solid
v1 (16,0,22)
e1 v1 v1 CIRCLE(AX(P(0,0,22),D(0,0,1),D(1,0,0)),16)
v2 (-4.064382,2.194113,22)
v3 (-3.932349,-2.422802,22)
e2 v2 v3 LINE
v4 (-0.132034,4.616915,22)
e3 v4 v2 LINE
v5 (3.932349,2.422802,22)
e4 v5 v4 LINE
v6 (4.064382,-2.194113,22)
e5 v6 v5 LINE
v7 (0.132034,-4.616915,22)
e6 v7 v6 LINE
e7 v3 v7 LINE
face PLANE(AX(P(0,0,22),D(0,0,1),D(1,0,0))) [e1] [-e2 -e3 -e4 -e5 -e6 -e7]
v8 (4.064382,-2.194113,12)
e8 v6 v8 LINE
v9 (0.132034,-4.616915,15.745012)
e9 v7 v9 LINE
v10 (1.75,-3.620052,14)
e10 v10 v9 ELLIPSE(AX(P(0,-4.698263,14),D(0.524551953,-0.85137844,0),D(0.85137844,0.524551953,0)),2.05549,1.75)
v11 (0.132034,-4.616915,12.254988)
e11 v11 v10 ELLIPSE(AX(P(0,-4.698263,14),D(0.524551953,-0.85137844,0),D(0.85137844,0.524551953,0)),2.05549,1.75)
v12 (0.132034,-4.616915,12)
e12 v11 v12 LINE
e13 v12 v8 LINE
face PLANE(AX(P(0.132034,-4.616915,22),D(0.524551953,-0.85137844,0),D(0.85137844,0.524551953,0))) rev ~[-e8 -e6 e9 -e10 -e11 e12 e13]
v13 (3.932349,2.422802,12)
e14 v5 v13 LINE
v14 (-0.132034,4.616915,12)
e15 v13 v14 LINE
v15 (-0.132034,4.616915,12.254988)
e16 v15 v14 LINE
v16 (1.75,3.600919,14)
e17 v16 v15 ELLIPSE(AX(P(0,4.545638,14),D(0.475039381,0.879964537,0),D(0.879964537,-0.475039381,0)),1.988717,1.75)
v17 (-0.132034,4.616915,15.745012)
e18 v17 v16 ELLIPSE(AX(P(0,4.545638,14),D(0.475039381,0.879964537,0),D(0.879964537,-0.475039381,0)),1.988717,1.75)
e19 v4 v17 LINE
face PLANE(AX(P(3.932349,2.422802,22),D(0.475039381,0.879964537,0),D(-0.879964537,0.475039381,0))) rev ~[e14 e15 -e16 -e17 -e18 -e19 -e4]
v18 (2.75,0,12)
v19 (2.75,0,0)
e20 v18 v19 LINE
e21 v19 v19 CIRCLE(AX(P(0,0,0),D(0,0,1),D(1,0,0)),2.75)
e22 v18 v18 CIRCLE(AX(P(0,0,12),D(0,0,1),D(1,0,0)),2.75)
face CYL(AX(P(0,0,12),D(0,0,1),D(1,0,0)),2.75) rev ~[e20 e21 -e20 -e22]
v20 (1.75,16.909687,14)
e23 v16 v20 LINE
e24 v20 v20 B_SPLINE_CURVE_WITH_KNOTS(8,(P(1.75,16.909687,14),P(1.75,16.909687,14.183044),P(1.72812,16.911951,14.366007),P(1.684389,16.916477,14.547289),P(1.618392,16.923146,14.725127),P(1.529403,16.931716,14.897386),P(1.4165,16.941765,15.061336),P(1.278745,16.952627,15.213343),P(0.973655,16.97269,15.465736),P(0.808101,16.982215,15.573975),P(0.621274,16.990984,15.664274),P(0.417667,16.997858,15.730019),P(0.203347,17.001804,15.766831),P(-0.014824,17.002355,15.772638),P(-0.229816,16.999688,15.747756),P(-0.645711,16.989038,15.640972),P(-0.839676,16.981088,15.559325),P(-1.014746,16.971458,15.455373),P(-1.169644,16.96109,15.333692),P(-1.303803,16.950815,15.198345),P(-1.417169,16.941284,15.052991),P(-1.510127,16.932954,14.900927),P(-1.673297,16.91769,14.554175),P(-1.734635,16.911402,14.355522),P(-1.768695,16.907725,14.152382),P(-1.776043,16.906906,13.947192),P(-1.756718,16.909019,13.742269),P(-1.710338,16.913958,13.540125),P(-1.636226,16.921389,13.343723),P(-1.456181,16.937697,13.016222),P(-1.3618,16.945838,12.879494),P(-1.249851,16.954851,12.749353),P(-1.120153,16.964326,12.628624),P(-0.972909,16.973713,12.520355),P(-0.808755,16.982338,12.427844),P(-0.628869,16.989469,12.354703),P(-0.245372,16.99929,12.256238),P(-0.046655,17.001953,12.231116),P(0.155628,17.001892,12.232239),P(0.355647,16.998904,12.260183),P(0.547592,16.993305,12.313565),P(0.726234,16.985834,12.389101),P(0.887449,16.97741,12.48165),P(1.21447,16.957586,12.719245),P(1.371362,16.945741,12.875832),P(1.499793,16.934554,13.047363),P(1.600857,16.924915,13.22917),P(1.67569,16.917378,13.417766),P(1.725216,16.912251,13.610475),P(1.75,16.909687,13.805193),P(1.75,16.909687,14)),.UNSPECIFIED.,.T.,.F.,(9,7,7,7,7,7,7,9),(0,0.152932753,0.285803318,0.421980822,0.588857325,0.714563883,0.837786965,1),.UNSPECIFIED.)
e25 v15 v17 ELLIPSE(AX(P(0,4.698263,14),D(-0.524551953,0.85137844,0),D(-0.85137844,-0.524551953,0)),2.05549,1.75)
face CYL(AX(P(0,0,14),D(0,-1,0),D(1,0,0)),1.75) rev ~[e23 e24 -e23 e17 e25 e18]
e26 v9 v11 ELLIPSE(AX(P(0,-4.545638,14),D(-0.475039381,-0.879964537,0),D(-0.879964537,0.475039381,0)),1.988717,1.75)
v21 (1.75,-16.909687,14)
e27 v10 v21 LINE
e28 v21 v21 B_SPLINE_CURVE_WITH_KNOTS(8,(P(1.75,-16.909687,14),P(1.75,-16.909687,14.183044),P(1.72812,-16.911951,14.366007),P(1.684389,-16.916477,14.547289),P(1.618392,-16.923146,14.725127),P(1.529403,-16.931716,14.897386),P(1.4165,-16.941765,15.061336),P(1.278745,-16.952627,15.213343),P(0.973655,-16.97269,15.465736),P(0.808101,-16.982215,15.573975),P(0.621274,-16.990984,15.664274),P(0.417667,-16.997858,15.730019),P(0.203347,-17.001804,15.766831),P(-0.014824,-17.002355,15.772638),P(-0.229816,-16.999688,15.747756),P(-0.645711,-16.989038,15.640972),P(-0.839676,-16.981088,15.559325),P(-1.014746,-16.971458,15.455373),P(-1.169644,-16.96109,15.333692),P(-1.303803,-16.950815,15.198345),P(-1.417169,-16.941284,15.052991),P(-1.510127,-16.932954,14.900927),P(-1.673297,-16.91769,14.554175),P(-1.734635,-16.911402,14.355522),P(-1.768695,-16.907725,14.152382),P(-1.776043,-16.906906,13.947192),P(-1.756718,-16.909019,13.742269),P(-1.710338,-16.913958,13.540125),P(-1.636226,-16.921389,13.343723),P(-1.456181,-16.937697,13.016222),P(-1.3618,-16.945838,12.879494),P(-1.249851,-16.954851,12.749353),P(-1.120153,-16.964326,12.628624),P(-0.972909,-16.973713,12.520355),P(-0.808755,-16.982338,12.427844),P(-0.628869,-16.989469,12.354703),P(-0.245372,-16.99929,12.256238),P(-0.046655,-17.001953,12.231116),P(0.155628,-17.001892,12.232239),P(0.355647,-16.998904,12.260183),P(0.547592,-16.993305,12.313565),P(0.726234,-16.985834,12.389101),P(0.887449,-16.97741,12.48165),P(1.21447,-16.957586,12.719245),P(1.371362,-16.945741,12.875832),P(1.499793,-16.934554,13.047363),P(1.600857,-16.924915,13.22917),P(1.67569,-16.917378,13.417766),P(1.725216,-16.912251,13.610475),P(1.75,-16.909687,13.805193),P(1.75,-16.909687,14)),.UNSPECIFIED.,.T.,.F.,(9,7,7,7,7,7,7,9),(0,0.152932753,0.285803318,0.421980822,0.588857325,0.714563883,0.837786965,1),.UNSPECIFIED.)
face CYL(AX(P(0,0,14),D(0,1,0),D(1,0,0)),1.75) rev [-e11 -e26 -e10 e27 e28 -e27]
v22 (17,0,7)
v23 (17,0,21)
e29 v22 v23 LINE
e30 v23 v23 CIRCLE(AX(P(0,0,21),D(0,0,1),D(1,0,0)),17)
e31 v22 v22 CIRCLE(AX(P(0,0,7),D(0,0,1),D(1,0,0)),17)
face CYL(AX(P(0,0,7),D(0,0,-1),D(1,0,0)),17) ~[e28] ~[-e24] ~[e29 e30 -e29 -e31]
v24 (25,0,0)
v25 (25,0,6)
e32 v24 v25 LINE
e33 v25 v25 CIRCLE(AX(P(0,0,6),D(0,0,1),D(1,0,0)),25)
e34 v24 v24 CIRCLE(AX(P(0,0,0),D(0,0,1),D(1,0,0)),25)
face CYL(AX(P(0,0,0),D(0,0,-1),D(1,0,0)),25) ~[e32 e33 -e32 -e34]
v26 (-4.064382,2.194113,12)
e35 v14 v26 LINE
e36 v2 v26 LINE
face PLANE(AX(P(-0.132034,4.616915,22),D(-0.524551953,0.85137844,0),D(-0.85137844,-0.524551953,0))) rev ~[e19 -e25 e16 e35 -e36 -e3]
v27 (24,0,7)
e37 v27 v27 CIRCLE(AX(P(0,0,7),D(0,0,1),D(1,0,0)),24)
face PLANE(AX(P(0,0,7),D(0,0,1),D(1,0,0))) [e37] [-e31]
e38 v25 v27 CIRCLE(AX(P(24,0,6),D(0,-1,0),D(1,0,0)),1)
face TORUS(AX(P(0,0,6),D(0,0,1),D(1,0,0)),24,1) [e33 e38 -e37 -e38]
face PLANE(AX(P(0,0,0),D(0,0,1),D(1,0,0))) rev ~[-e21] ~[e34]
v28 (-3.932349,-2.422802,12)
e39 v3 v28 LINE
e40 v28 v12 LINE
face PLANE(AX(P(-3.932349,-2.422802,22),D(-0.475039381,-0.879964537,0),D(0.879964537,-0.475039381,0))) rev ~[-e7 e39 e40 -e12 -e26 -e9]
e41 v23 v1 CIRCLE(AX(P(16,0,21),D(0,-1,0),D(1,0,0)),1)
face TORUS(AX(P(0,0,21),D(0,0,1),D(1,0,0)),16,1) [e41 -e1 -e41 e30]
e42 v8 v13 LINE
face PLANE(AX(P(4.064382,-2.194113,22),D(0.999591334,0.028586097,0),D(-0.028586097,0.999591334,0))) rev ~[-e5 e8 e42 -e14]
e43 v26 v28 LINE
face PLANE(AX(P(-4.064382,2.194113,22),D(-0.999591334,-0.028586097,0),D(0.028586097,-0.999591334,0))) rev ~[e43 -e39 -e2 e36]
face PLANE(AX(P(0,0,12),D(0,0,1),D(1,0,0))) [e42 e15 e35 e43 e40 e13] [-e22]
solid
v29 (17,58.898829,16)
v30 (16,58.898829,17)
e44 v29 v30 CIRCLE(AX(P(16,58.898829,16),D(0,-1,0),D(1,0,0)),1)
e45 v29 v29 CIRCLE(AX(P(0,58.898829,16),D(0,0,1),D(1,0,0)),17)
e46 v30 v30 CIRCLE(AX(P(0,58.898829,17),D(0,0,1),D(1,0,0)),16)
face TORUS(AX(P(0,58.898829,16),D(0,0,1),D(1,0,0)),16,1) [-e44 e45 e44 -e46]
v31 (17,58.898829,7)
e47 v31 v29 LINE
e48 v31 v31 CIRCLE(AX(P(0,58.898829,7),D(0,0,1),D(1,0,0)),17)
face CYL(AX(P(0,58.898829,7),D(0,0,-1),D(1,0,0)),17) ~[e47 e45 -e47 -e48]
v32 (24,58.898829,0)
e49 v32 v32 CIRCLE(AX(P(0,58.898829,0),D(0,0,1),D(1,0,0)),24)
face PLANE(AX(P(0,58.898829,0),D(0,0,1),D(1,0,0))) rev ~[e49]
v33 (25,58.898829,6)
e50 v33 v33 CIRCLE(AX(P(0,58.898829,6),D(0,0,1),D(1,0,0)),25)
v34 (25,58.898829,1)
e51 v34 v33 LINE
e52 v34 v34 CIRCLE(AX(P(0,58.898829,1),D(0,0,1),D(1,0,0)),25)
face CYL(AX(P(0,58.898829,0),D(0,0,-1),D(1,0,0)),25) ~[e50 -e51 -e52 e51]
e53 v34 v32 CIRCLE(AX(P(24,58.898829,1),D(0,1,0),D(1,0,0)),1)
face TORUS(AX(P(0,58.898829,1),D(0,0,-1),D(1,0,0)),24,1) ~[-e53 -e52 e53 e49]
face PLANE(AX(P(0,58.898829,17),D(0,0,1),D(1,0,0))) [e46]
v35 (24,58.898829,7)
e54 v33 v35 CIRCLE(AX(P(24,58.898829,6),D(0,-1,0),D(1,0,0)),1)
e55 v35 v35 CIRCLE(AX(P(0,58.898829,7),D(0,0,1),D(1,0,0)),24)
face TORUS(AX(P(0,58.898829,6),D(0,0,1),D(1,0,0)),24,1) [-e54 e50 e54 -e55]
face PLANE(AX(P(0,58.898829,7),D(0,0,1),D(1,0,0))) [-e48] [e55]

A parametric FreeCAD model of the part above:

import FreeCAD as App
import Part
import Sketcher
Q = App.Units.Quantity


def edges_at(feature, points):
    """Names of the edges that pass closest to the given points."""
    edges = feature.Shape.Edges
    near = lambda p: min(range(len(edges)), key=lambda i: edges[i].distToShape(Part.Vertex(*p))[0])
    return sorted({f"Edge{near(p) + 1}" for p in points})


def add_polygon(sketch, points):
    """Adds a closed chain of lines whose ends are joined by coincident constraints."""
    first, n = sketch.GeometryCount, len(points)
    for a, b in zip(points, points[1:] + points[:1]):
        sketch.addGeometry(Part.LineSegment(App.Vector(*a, 0), App.Vector(*b, 0)), False)
    for i in range(n):
        sketch.addConstraint(Sketcher.Constraint("Coincident", first + i, 2, first + (i + 1) % n, 1))

doc = App.newDocument("Part")
body = doc.addObject("PartDesign::Body", "Body")

sketch1 = doc.addObject("Sketcher::SketchObject", "Sketch")
body.addObject(sketch1)
sketch1.AttachmentSupport = (doc.XY_Plane, [""])
sketch1.MapMode = "FlatFace"
sketch1.addGeometry(Part.Circle(App.Vector(0, 0, 0), App.Vector(0, 0, 1), 25), False)
sketch1.addConstraint([
    Sketcher.Constraint("Coincident", 0, 3, -1, 1),
    Sketcher.Constraint("Diameter", 0, Q("50 mm")),
])
pad1 = doc.addObject("PartDesign::Pad", "Pad")
body.addObject(pad1)
pad1.Profile = sketch1
pad1.Length = 7

sketch2 = doc.addObject("Sketcher::SketchObject", "Sketch001")
body.addObject(sketch2)
sketch2.AttachmentSupport = (doc.XY_Plane, [""])
sketch2.MapMode = "FlatFace"
sketch2.AttachmentOffset = App.Placement(App.Vector(0, 0, 7), App.Rotation())
sketch2.addGeometry(Part.Circle(App.Vector(0, 0, 0), App.Vector(0, 0, 1), 17), False)
sketch2.addConstraint([
    Sketcher.Constraint("Coincident", 0, 3, -1, 1),
    Sketcher.Constraint("Diameter", 0, Q("34 mm")),
])
pad2 = doc.addObject("PartDesign::Pad", "Pad001")
body.addObject(pad2)
pad2.Profile = sketch2
pad2.Length = 15

sketch3 = doc.addObject("Sketcher::SketchObject", "Sketch002")
body.addObject(sketch3)
sketch3.AttachmentSupport = (doc.XY_Plane, [""])
sketch3.MapMode = "FlatFace"
sketch3.AttachmentOffset = App.Placement(App.Vector(0, 0, 22), App.Rotation())
add_polygon(sketch3, [(-0.1, 4.6), (-4.1, 2.2), (-3.9, -2.4), (0.1, -4.6), (4.1, -2.2), (3.9, 2.4)])
sketch3.addConstraint([
    Sketcher.Constraint("Symmetric", 0, 2, 3, 2, -1, 1),
    Sketcher.Constraint("Symmetric", 1, 2, 4, 2, -1, 1),
    Sketcher.Constraint("Symmetric", 2, 2, 5, 2, -1, 1),
    Sketcher.Constraint("Equal", 0, 1),
    Sketcher.Constraint("Equal", 1, 2),
    Sketcher.Constraint("DistanceY", 1, 2, -1, 1, Q("2.422802 mm")),
    Sketcher.Constraint("DistanceY", 2, 2, 3, 2, Q("2.422802 mm")),
    Sketcher.Constraint("DistanceX", 1, 2, -1, 1, Q("3.932349 mm")),
    Sketcher.Constraint("DistanceX", 2, 2, 3, 2, Q("3.932349 mm")),
])
pocket1 = doc.addObject("PartDesign::Pocket", "Pocket")
body.addObject(pocket1)
pocket1.Profile = sketch3
pocket1.Length = 10

sketch4 = doc.addObject("Sketcher::SketchObject", "Sketch003")
body.addObject(sketch4)
sketch4.AttachmentSupport = (doc.XY_Plane, [""])
sketch4.MapMode = "FlatFace"
sketch4.AttachmentOffset = App.Placement(App.Vector(0, 0, 12), App.Rotation())
sketch4.addGeometry(Part.Circle(App.Vector(0, 0, 0), App.Vector(0, 0, 1), 2.8), False)
sketch4.addConstraint([
    Sketcher.Constraint("Coincident", 0, 3, -1, 1),
    Sketcher.Constraint("Diameter", 0, Q("5.5 mm")),
])
pocket2 = doc.addObject("PartDesign::Pocket", "Pocket001")
body.addObject(pocket2)
pocket2.Profile = sketch4
pocket2.Length = 25
doc.recompute()

fillet = doc.addObject("PartDesign::Fillet", "Fillet")
body.addObject(fillet)
fillet.Base = (pocket2, edges_at(pocket2, [(-25, 0, 7), (-17, 0, 22)]))
fillet.Radius = 1

sketch5 = doc.addObject("Sketcher::SketchObject", "Sketch004")
body.addObject(sketch5)
sketch5.AttachmentSupport = (doc.XZ_Plane, [""])
sketch5.MapMode = "FlatFace"
sketch5.addGeometry(Part.Circle(App.Vector(0, 14, 0), App.Vector(0, 0, 1), 1.8), False)
sketch5.addConstraint([
    Sketcher.Constraint("PointOnObject", 0, 3, -2),
    Sketcher.Constraint("Diameter", 0, Q("3.5 mm")),
    Sketcher.Constraint("DistanceY", -1, 1, 0, 3, Q("14 mm")),
])
pocket3 = doc.addObject("PartDesign::Pocket", "Pocket002")
body.addObject(pocket3)
pocket3.Profile = sketch5
pocket3.Type = "ThroughAll"
pocket3.Midplane = True
body2 = doc.addObject("PartDesign::Body", "Body001")

sketch6 = doc.addObject("Sketcher::SketchObject", "Sketch005")
body2.addObject(sketch6)
sketch6.AttachmentSupport = (doc.getObject("XY_Plane001"), [""])
sketch6.MapMode = "FlatFace"
sketch6.addGeometry(Part.Circle(App.Vector(0, 59, 0), App.Vector(0, 0, 1), 25), False)
sketch6.addConstraint([
    Sketcher.Constraint("PointOnObject", 0, 3, -2),
    Sketcher.Constraint("Diameter", 0, Q("50 mm")),
    Sketcher.Constraint("DistanceY", -1, 1, 0, 3, Q("58.898829 mm")),
])
pad3 = doc.addObject("PartDesign::Pad", "Pad002")
body2.addObject(pad3)
pad3.Profile = sketch6
pad3.Length = 7

sketch7 = doc.addObject("Sketcher::SketchObject", "Sketch006")
body2.addObject(sketch7)
sketch7.AttachmentSupport = (doc.getObject("XY_Plane001"), [""])
sketch7.MapMode = "FlatFace"
sketch7.AttachmentOffset = App.Placement(App.Vector(0, 0, 7), App.Rotation())
sketch7.addGeometry(Part.Circle(App.Vector(0, 59, 0), App.Vector(0, 0, 1), 17), False)
sketch7.addConstraint([
    Sketcher.Constraint("PointOnObject", 0, 3, -2),
    Sketcher.Constraint("Diameter", 0, Q("34 mm")),
    Sketcher.Constraint("DistanceY", -1, 1, 0, 3, Q("58.898829 mm")),
])
pad4 = doc.addObject("PartDesign::Pad", "Pad003")
body2.addObject(pad4)
pad4.Profile = sketch7
pad4.Length = 10
doc.recompute()

fillet2 = doc.addObject("PartDesign::Fillet", "Fillet001")
body2.addObject(fillet2)
fillet2.Base = (pad4, edges_at(pad4, [(-17, 58.899, 17), (-25, 58.899, 7), (-25, 58.899, 0)]))
fillet2.Radius = 1

doc.recompute()
